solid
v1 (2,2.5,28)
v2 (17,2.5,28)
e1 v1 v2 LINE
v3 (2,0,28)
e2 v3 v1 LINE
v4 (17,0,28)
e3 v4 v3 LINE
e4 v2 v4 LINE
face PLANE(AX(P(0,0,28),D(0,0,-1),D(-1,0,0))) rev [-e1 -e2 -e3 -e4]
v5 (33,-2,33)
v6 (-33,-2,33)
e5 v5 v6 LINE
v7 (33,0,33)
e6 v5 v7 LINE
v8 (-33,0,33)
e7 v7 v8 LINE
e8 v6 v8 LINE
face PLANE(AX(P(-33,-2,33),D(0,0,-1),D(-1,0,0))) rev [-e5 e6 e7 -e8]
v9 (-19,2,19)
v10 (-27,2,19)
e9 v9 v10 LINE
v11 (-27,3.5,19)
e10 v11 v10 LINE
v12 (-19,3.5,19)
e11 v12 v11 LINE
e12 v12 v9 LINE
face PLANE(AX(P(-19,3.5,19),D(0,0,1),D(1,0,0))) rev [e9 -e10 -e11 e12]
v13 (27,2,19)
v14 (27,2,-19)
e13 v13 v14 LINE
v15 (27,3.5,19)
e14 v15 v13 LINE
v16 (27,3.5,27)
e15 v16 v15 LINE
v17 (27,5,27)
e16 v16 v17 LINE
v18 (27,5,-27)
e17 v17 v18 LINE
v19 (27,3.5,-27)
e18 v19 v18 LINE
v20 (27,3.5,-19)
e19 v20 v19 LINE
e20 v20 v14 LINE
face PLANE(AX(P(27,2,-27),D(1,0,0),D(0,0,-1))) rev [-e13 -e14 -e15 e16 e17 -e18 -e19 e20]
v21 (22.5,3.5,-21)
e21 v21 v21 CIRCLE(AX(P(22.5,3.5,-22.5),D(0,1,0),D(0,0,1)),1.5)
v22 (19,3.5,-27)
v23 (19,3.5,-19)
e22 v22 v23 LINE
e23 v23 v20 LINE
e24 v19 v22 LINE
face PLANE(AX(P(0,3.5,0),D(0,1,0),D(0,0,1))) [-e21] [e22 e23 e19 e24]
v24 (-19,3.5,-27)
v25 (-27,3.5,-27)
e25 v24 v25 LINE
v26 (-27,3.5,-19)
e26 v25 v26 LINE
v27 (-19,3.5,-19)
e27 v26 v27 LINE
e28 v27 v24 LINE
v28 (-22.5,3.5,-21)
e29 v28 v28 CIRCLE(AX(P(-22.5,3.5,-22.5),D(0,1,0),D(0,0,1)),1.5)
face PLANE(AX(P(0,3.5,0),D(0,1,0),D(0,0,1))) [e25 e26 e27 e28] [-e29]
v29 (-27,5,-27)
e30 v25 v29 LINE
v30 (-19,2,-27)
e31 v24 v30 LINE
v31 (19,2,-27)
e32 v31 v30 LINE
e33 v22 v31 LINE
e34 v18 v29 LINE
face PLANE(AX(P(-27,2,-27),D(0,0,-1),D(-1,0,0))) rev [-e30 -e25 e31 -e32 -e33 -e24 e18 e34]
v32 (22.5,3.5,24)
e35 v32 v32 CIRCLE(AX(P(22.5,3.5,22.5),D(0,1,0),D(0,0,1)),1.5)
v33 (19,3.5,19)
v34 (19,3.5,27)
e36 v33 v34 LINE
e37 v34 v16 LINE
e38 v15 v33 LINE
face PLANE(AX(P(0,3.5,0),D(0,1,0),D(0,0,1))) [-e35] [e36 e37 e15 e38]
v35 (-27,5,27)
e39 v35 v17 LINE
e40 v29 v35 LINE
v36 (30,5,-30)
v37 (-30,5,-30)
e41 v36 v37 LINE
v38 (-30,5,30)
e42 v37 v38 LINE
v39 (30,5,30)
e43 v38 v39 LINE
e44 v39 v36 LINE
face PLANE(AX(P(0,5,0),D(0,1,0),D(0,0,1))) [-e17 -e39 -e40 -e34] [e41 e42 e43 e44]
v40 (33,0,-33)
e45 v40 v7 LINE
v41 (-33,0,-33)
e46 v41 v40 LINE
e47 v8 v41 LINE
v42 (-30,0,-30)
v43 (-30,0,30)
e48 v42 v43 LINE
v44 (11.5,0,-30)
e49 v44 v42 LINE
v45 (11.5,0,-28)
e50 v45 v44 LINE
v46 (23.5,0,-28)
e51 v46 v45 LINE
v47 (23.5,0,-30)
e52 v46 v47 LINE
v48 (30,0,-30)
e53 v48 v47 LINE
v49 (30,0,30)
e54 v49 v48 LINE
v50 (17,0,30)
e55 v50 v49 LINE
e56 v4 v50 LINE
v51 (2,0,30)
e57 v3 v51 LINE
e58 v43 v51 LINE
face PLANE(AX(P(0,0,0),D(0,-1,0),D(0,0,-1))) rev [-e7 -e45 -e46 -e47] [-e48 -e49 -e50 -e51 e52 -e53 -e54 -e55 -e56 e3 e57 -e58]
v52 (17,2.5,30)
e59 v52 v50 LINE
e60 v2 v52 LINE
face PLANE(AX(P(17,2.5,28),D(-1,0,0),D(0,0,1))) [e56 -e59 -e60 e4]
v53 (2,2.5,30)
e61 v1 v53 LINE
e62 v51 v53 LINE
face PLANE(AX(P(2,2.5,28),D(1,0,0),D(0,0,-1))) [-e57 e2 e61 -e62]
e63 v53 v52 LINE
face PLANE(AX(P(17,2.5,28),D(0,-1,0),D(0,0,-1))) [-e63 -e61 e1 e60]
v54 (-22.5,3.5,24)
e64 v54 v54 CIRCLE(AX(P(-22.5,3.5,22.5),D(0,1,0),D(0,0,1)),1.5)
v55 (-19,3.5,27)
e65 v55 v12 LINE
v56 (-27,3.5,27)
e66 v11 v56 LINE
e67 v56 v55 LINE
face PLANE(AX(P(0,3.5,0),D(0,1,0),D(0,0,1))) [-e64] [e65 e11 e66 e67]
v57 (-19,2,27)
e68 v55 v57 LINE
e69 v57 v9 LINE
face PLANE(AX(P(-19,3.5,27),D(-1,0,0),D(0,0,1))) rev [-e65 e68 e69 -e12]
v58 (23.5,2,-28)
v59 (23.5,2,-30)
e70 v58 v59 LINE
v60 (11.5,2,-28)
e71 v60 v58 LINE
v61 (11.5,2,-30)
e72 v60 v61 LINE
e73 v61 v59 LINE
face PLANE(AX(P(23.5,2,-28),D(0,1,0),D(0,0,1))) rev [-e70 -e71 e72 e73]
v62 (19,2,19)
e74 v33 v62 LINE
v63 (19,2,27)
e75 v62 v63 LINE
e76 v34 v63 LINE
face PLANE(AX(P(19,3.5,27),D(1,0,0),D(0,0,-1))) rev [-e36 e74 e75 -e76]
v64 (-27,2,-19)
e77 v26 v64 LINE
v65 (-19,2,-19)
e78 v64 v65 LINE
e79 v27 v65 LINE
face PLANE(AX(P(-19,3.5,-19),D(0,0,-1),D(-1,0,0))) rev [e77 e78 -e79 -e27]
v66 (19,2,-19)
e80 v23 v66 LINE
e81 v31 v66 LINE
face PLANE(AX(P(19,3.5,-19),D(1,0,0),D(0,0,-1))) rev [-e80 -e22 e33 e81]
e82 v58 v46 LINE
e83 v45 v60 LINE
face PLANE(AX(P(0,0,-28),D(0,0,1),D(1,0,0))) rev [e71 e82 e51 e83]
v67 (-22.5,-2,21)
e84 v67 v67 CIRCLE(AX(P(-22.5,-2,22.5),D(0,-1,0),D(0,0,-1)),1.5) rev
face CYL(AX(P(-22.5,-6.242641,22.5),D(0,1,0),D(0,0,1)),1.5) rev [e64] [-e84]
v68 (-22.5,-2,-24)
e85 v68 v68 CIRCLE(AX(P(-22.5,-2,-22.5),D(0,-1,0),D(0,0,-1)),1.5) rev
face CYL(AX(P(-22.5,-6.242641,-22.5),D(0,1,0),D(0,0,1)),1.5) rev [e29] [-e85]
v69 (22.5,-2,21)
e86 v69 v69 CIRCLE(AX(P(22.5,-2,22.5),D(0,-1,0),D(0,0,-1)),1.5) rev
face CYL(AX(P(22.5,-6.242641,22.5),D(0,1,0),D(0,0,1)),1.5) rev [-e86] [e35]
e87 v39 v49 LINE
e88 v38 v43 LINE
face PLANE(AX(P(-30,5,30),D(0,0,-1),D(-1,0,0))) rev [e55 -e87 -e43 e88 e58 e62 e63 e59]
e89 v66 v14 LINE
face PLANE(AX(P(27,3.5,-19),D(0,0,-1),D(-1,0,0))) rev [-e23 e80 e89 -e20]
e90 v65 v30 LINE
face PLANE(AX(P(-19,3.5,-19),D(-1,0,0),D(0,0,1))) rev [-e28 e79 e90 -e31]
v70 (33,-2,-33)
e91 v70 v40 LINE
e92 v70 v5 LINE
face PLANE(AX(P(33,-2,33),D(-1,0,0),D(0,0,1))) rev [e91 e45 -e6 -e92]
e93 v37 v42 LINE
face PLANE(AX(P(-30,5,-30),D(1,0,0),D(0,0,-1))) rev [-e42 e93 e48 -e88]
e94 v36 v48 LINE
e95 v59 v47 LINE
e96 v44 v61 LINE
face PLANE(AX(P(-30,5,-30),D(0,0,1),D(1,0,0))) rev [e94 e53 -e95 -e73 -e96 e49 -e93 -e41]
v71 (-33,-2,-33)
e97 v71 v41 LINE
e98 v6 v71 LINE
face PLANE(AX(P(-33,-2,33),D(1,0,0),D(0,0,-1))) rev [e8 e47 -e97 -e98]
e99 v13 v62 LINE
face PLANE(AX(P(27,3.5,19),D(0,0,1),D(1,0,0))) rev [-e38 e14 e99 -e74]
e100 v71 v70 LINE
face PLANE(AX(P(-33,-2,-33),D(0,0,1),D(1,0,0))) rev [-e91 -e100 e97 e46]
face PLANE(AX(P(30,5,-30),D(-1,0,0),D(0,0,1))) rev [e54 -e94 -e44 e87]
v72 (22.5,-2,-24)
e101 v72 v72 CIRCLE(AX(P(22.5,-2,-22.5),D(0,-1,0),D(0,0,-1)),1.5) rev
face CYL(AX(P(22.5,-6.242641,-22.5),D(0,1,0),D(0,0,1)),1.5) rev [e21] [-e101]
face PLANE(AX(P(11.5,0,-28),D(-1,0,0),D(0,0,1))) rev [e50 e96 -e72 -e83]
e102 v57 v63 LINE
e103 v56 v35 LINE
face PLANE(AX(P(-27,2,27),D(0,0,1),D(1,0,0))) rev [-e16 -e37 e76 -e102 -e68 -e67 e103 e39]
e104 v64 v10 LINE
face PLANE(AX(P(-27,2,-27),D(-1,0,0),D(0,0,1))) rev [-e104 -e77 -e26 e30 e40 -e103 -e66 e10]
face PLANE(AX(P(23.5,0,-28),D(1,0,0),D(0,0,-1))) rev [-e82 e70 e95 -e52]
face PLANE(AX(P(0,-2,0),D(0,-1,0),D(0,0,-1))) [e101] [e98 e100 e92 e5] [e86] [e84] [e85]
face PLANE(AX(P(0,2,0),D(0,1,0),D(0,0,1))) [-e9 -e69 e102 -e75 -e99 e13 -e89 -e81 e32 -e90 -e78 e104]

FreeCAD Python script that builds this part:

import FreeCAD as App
import Part
import Sketcher
Q = App.Units.Quantity

doc = App.newDocument("Part")
params = doc.addObject("Spreadsheet::Sheet", "Params")
for row, (alias, value) in enumerate([
    ("sketch1_width", "60 mm"),
    ("pad1_length", "5 mm"),
    ("sketch2_width", "54 mm"),
    ("pocket1_length", "3 mm"),
    ("sketch3_width", "15 mm"),
    ("sketch3_height", "2.5 mm"),
    ("pocket2_length", "2 mm"),
    ("sketch4_width", "12 mm"),
    ("sketch4_height", "2 mm"),
    ("pocket3_length", "2 mm"),
    ("sketch5_width", "66 mm"),
    ("pad2_length", "2 mm"),
    ("sketch6_width", "8 mm"),
    ("pad3_length", "1.5 mm"),
    ("sketch7_diameter", "3 mm"),
    ("pocket4_length", "5.5 mm"),
], start=1):
    params.set(f"A{row}", alias)
    params.set(f"B{row}", "=" + value)
    params.setAlias(f"B{row}", alias)

body = doc.addObject("PartDesign::Body", "Body")

sketch1 = body.newObject("Sketcher::SketchObject", "Sketch")
sketch1.AttachmentSupport = (doc.getObject("XZ_Plane"), [""])
sketch1.MapMode = "FlatFace"
sketch1.addGeometry(Part.LineSegment(App.Vector(-30, -30, 0), App.Vector(-30, 30, 0)), False)
sketch1.addGeometry(Part.LineSegment(App.Vector(-30, 30, 0), App.Vector(30, 30, 0)), False)
sketch1.addGeometry(Part.LineSegment(App.Vector(30, 30, 0), App.Vector(30, -30, 0)), False)
sketch1.addGeometry(Part.LineSegment(App.Vector(30, -30, 0), App.Vector(-30, -30, 0)), False)
sketch1.addConstraint(Sketcher.Constraint("Coincident", 0, 2, 1, 1))
sketch1.addConstraint(Sketcher.Constraint("Coincident", 1, 2, 2, 1))
sketch1.addConstraint(Sketcher.Constraint("Coincident", 2, 2, 3, 1))
sketch1.addConstraint(Sketcher.Constraint("Coincident", 3, 2, 0, 1))
sketch1.addConstraint(Sketcher.Constraint("Vertical", 0))
sketch1.addConstraint(Sketcher.Constraint("Horizontal", 1))
sketch1.addConstraint(Sketcher.Constraint("Vertical", 2))
sketch1.addConstraint(Sketcher.Constraint("Horizontal", 3))
sketch1.addConstraint(Sketcher.Constraint("Symmetric", 0, 2, 2, 2, -1, 1))
sketch1.addConstraint(Sketcher.Constraint("Equal", 3, 0))
sketch1.addConstraint(Sketcher.Constraint("DistanceX", 1, 1, 1, 2, Q("60 mm")))
sketch1.setExpression("Constraints[10]", "Params.sketch1_width")
pad1 = body.newObject("PartDesign::Pad", "Pad")
pad1.Profile = sketch1
pad1.setExpression("Length", "Params.pad1_length")
pad1.Reversed = True

sketch2 = body.newObject("Sketcher::SketchObject", "Sketch001")
sketch2.AttachmentSupport = (doc.getObject("XZ_Plane"), [""])
sketch2.MapMode = "FlatFace"
sketch2.AttachmentOffset = App.Placement(App.Vector(0, 0, -5), App.Rotation())
sketch2.addGeometry(Part.LineSegment(App.Vector(-27, -27, 0), App.Vector(-27, 27, 0)), False)
sketch2.addGeometry(Part.LineSegment(App.Vector(-27, 27, 0), App.Vector(27, 27, 0)), False)
sketch2.addGeometry(Part.LineSegment(App.Vector(27, 27, 0), App.Vector(27, -27, 0)), False)
sketch2.addGeometry(Part.LineSegment(App.Vector(27, -27, 0), App.Vector(-27, -27, 0)), False)
sketch2.addConstraint(Sketcher.Constraint("Coincident", 0, 2, 1, 1))
sketch2.addConstraint(Sketcher.Constraint("Coincident", 1, 2, 2, 1))
sketch2.addConstraint(Sketcher.Constraint("Coincident", 2, 2, 3, 1))
sketch2.addConstraint(Sketcher.Constraint("Coincident", 3, 2, 0, 1))
sketch2.addConstraint(Sketcher.Constraint("Vertical", 0))
sketch2.addConstraint(Sketcher.Constraint("Horizontal", 1))
sketch2.addConstraint(Sketcher.Constraint("Vertical", 2))
sketch2.addConstraint(Sketcher.Constraint("Horizontal", 3))
sketch2.addConstraint(Sketcher.Constraint("Symmetric", 0, 2, 2, 2, -1, 1))
sketch2.addConstraint(Sketcher.Constraint("Equal", 3, 0))
sketch2.addConstraint(Sketcher.Constraint("DistanceX", 1, 1, 1, 2, Q("54 mm")))
sketch2.setExpression("Constraints[10]", "Params.sketch2_width")
pocket1 = body.newObject("PartDesign::Pocket", "Pocket")
pocket1.Profile = sketch2
pocket1.setExpression("Length", "Params.pocket1_length")
pocket1.Reversed = True

sketch3 = body.newObject("Sketcher::SketchObject", "Sketch002")
sketch3.AttachmentSupport = (doc.getObject("XY_Plane"), [""])
sketch3.MapMode = "FlatFace"
sketch3.AttachmentOffset = App.Placement(App.Vector(0, 0, 30), App.Rotation())
sketch3.addGeometry(Part.LineSegment(App.Vector(17, 2.5, 0), App.Vector(17, 0, 0)), False)
sketch3.addGeometry(Part.LineSegment(App.Vector(17, 0, 0), App.Vector(2, 0, 0)), False)
sketch3.addGeometry(Part.LineSegment(App.Vector(2, 0, 0), App.Vector(2, 2.5, 0)), False)
sketch3.addGeometry(Part.LineSegment(App.Vector(2, 2.5, 0), App.Vector(17, 2.5, 0)), False)
sketch3.addConstraint(Sketcher.Constraint("Coincident", 0, 2, 1, 1))
sketch3.addConstraint(Sketcher.Constraint("Coincident", 1, 2, 2, 1))
sketch3.addConstraint(Sketcher.Constraint("Coincident", 2, 2, 3, 1))
sketch3.addConstraint(Sketcher.Constraint("Coincident", 3, 2, 0, 1))
sketch3.addConstraint(Sketcher.Constraint("Vertical", 0))
sketch3.addConstraint(Sketcher.Constraint("Horizontal", 1))
sketch3.addConstraint(Sketcher.Constraint("Vertical", 2))
sketch3.addConstraint(Sketcher.Constraint("Horizontal", 3))
sketch3.addConstraint(Sketcher.Constraint("PointOnObject", 0, 2, -1))
sketch3.addConstraint(Sketcher.Constraint("DistanceX", 1, 2, 1, 1, Q("15 mm")))
sketch3.addConstraint(Sketcher.Constraint("DistanceY", 0, 2, 0, 1, Q("2.5 mm")))
sketch3.addConstraint(Sketcher.Constraint("DistanceX", -1, 1, 0, 2, Q("17 mm")))
sketch3.setExpression("Constraints[9]", "Params.sketch3_width")
sketch3.setExpression("Constraints[10]", "Params.sketch3_height")
pocket2 = body.newObject("PartDesign::Pocket", "Pocket001")
pocket2.Profile = sketch3
pocket2.setExpression("Length", "Params.pocket2_length")

sketch4 = body.newObject("Sketcher::SketchObject", "Sketch003")
sketch4.AttachmentSupport = (doc.getObject("XY_Plane"), [""])
sketch4.MapMode = "FlatFace"
sketch4.AttachmentOffset = App.Placement(App.Vector(0, 0, -30), App.Rotation())
sketch4.addGeometry(Part.LineSegment(App.Vector(23.5, 2, 0), App.Vector(23.5, 0, 0)), False)
sketch4.addGeometry(Part.LineSegment(App.Vector(23.5, 0, 0), App.Vector(11.5, 0, 0)), False)
sketch4.addGeometry(Part.LineSegment(App.Vector(11.5, 0, 0), App.Vector(11.5, 2, 0)), False)
sketch4.addGeometry(Part.LineSegment(App.Vector(11.5, 2, 0), App.Vector(23.5, 2, 0)), False)
sketch4.addConstraint(Sketcher.Constraint("Coincident", 0, 2, 1, 1))
sketch4.addConstraint(Sketcher.Constraint("Coincident", 1, 2, 2, 1))
sketch4.addConstraint(Sketcher.Constraint("Coincident", 2, 2, 3, 1))
sketch4.addConstraint(Sketcher.Constraint("Coincident", 3, 2, 0, 1))
sketch4.addConstraint(Sketcher.Constraint("Vertical", 0))
sketch4.addConstraint(Sketcher.Constraint("Horizontal", 1))
sketch4.addConstraint(Sketcher.Constraint("Vertical", 2))
sketch4.addConstraint(Sketcher.Constraint("Horizontal", 3))
sketch4.addConstraint(Sketcher.Constraint("PointOnObject", 0, 2, -1))
sketch4.addConstraint(Sketcher.Constraint("DistanceX", 1, 2, 1, 1, Q("12 mm")))
sketch4.addConstraint(Sketcher.Constraint("DistanceY", 0, 2, 0, 1, Q("2 mm")))
sketch4.addConstraint(Sketcher.Constraint("DistanceX", -1, 1, 0, 2, Q("23.5 mm")))
sketch4.setExpression("Constraints[9]", "Params.sketch4_width")
sketch4.setExpression("Constraints[10]", "Params.sketch4_height")
pocket3 = body.newObject("PartDesign::Pocket", "Pocket002")
pocket3.Profile = sketch4
pocket3.setExpression("Length", "Params.pocket3_length")
pocket3.Reversed = True

sketch5 = body.newObject("Sketcher::SketchObject", "Sketch004")
sketch5.AttachmentSupport = (doc.getObject("XZ_Plane"), [""])
sketch5.MapMode = "FlatFace"
sketch5.addGeometry(Part.LineSegment(App.Vector(-33, 33, 0), App.Vector(-33, -33, 0)), False)
sketch5.addGeometry(Part.LineSegment(App.Vector(-33, -33, 0), App.Vector(33, -33, 0)), False)
sketch5.addGeometry(Part.LineSegment(App.Vector(33, -33, 0), App.Vector(33, 33, 0)), False)
sketch5.addGeometry(Part.LineSegment(App.Vector(33, 33, 0), App.Vector(-33, 33, 0)), False)
sketch5.addConstraint(Sketcher.Constraint("Coincident", 0, 2, 1, 1))
sketch5.addConstraint(Sketcher.Constraint("Coincident", 1, 2, 2, 1))
sketch5.addConstraint(Sketcher.Constraint("Coincident", 2, 2, 3, 1))
sketch5.addConstraint(Sketcher.Constraint("Coincident", 3, 2, 0, 1))
sketch5.addConstraint(Sketcher.Constraint("Vertical", 0))
sketch5.addConstraint(Sketcher.Constraint("Horizontal", 1))
sketch5.addConstraint(Sketcher.Constraint("Vertical", 2))
sketch5.addConstraint(Sketcher.Constraint("Horizontal", 3))
sketch5.addConstraint(Sketcher.Constraint("Symmetric", 0, 2, 2, 2, -1, 1))
sketch5.addConstraint(Sketcher.Constraint("Equal", 3, 0))
sketch5.addConstraint(Sketcher.Constraint("DistanceX", 1, 1, 1, 2, Q("66 mm")))
sketch5.setExpression("Constraints[10]", "Params.sketch5_width")
pad2 = body.newObject("PartDesign::Pad", "Pad001")
pad2.Profile = sketch5
pad2.setExpression("Length", "Params.pad2_length")

sketch6 = body.newObject("Sketcher::SketchObject", "Sketch005")
sketch6.AttachmentSupport = (doc.getObject("XZ_Plane"), [""])
sketch6.MapMode = "FlatFace"
sketch6.AttachmentOffset = App.Placement(App.Vector(0, 0, -2), App.Rotation())
sketch6.addGeometry(Part.LineSegment(App.Vector(19, -27, 0), App.Vector(19, -19, 0)), False)
sketch6.addGeometry(Part.LineSegment(App.Vector(19, -19, 0), App.Vector(27, -19, 0)), False)
sketch6.addGeometry(Part.LineSegment(App.Vector(27, -19, 0), App.Vector(27, -27, 0)), False)
sketch6.addGeometry(Part.LineSegment(App.Vector(27, -27, 0), App.Vector(19, -27, 0)), False)
sketch6.addGeometry(Part.LineSegment(App.Vector(-27, -27, 0), App.Vector(-27, -19, 0)), False)
sketch6.addGeometry(Part.LineSegment(App.Vector(-27, -19, 0), App.Vector(-19, -19, 0)), False)
sketch6.addGeometry(Part.LineSegment(App.Vector(-19, -19, 0), App.Vector(-19, -27, 0)), False)
sketch6.addGeometry(Part.LineSegment(App.Vector(-19, -27, 0), App.Vector(-27, -27, 0)), False)
sketch6.addGeometry(Part.LineSegment(App.Vector(19, 19, 0), App.Vector(19, 27, 0)), False)
sketch6.addGeometry(Part.LineSegment(App.Vector(19, 27, 0), App.Vector(27, 27, 0)), False)
sketch6.addGeometry(Part.LineSegment(App.Vector(27, 27, 0), App.Vector(27, 19, 0)), False)
sketch6.addGeometry(Part.LineSegment(App.Vector(27, 19, 0), App.Vector(19, 19, 0)), False)
sketch6.addGeometry(Part.LineSegment(App.Vector(-27, 19, 0), App.Vector(-27, 27, 0)), False)
sketch6.addGeometry(Part.LineSegment(App.Vector(-27, 27, 0), App.Vector(-19, 27, 0)), False)
sketch6.addGeometry(Part.LineSegment(App.Vector(-19, 27, 0), App.Vector(-19, 19, 0)), False)
sketch6.addGeometry(Part.LineSegment(App.Vector(-19, 19, 0), App.Vector(-27, 19, 0)), False)
sketch6.addConstraint(Sketcher.Constraint("Coincident", 0, 2, 1, 1))
sketch6.addConstraint(Sketcher.Constraint("Coincident", 1, 2, 2, 1))
sketch6.addConstraint(Sketcher.Constraint("Coincident", 2, 2, 3, 1))
sketch6.addConstraint(Sketcher.Constraint("Coincident", 3, 2, 0, 1))
sketch6.addConstraint(Sketcher.Constraint("Coincident", 4, 2, 5, 1))
sketch6.addConstraint(Sketcher.Constraint("Coincident", 5, 2, 6, 1))
sketch6.addConstraint(Sketcher.Constraint("Coincident", 6, 2, 7, 1))
sketch6.addConstraint(Sketcher.Constraint("Coincident", 7, 2, 4, 1))
sketch6.addConstraint(Sketcher.Constraint("Coincident", 8, 2, 9, 1))
sketch6.addConstraint(Sketcher.Constraint("Coincident", 9, 2, 10, 1))
sketch6.addConstraint(Sketcher.Constraint("Coincident", 10, 2, 11, 1))
sketch6.addConstraint(Sketcher.Constraint("Coincident", 11, 2, 8, 1))
sketch6.addConstraint(Sketcher.Constraint("Coincident", 12, 2, 13, 1))
sketch6.addConstraint(Sketcher.Constraint("Coincident", 13, 2, 14, 1))
sketch6.addConstraint(Sketcher.Constraint("Coincident", 14, 2, 15, 1))
sketch6.addConstraint(Sketcher.Constraint("Coincident", 15, 2, 12, 1))
sketch6.addConstraint(Sketcher.Constraint("Vertical", 0))
sketch6.addConstraint(Sketcher.Constraint("Horizontal", 1))
sketch6.addConstraint(Sketcher.Constraint("Vertical", 2))
sketch6.addConstraint(Sketcher.Constraint("Horizontal", 3))
sketch6.addConstraint(Sketcher.Constraint("Vertical", 4))
sketch6.addConstraint(Sketcher.Constraint("Horizontal", 5))
sketch6.addConstraint(Sketcher.Constraint("Vertical", 6))
sketch6.addConstraint(Sketcher.Constraint("Horizontal", 7))
sketch6.addConstraint(Sketcher.Constraint("Vertical", 8))
sketch6.addConstraint(Sketcher.Constraint("Horizontal", 9))
sketch6.addConstraint(Sketcher.Constraint("Vertical", 10))
sketch6.addConstraint(Sketcher.Constraint("Horizontal", 11))
sketch6.addConstraint(Sketcher.Constraint("Vertical", 12))
sketch6.addConstraint(Sketcher.Constraint("Horizontal", 13))
sketch6.addConstraint(Sketcher.Constraint("Vertical", 14))
sketch6.addConstraint(Sketcher.Constraint("Horizontal", 15))
sketch6.addConstraint(Sketcher.Constraint("Symmetric", 6, 2, 8, 2, -1, 1))
sketch6.addConstraint(Sketcher.Constraint("Symmetric", 4, 2, 10, 2, -1, 1))
sketch6.addConstraint(Sketcher.Constraint("Symmetric", 2, 2, 12, 2, -1, 1))
sketch6.addConstraint(Sketcher.Constraint("Symmetric", 0, 2, 14, 2, -1, 1))
sketch6.addConstraint(Sketcher.Constraint("Symmetric", 1, 2, 4, 2, -2))
sketch6.addConstraint(Sketcher.Constraint("Symmetric", 3, 2, 6, 2, -2))
sketch6.addConstraint(Sketcher.Constraint("Equal", 15, 0))
sketch6.addConstraint(Sketcher.Constraint("DistanceX", 1, 1, 1, 2, Q("8 mm")))
sketch6.addConstraint(Sketcher.Constraint("DistanceX", -1, 1, 0, 2, Q("19 mm")))
sketch6.addConstraint(Sketcher.Constraint("DistanceY", 0, 2, -1, 1, Q("19 mm")))
sketch6.setExpression("Constraints[39]", "Params.sketch6_width")
pad3 = body.newObject("PartDesign::Pad", "Pad002")
pad3.Profile = sketch6
pad3.setExpression("Length", "Params.pad3_length")
pad3.Reversed = True

sketch7 = body.newObject("Sketcher::SketchObject", "Sketch006")
sketch7.AttachmentSupport = (doc.getObject("XZ_Plane"), [""])
sketch7.MapMode = "FlatFace"
sketch7.AttachmentOffset = App.Placement(App.Vector(0, 0, -3.5), App.Rotation())
sketch7.addGeometry(Part.Circle(App.Vector(-22.5, -22.5, 0), App.Vector(0, 0, 1), 1.5), False)
sketch7.addGeometry(Part.Circle(App.Vector(22.5, -22.5, 0), App.Vector(0, 0, 1), 1.5), False)
sketch7.addGeometry(Part.Circle(App.Vector(22.5, 22.5, 0), App.Vector(0, 0, 1), 1.5), False)
sketch7.addGeometry(Part.Circle(App.Vector(-22.5, 22.5, 0), App.Vector(0, 0, 1), 1.5), False)
sketch7.addConstraint(Sketcher.Constraint("Equal", 0, 1))
sketch7.addConstraint(Sketcher.Constraint("Equal", 1, 2))
sketch7.addConstraint(Sketcher.Constraint("Equal", 2, 3))
sketch7.addConstraint(Sketcher.Constraint("Symmetric", 0, 3, 2, 3, -1, 1))
sketch7.addConstraint(Sketcher.Constraint("Symmetric", 1, 3, 3, 3, -1, 1))
sketch7.addConstraint(Sketcher.Constraint("Symmetric", 0, 3, 1, 3, -2))
sketch7.addConstraint(Sketcher.Constraint("Diameter", 0, Q("3 mm")))
sketch7.addConstraint(Sketcher.Constraint("DistanceX", 0, 3, 1, 3, Q("45 mm")))
sketch7.addConstraint(Sketcher.Constraint("DistanceY", 1, 3, 2, 3, Q("45 mm")))
sketch7.setExpression("Constraints[6]", "Params.sketch7_diameter")
pocket4 = body.newObject("PartDesign::Pocket", "Pocket003")
pocket4.Profile = sketch7
pocket4.setExpression("Length", "Params.pocket4_length")
pocket4.Reversed = True

doc.recompute()
